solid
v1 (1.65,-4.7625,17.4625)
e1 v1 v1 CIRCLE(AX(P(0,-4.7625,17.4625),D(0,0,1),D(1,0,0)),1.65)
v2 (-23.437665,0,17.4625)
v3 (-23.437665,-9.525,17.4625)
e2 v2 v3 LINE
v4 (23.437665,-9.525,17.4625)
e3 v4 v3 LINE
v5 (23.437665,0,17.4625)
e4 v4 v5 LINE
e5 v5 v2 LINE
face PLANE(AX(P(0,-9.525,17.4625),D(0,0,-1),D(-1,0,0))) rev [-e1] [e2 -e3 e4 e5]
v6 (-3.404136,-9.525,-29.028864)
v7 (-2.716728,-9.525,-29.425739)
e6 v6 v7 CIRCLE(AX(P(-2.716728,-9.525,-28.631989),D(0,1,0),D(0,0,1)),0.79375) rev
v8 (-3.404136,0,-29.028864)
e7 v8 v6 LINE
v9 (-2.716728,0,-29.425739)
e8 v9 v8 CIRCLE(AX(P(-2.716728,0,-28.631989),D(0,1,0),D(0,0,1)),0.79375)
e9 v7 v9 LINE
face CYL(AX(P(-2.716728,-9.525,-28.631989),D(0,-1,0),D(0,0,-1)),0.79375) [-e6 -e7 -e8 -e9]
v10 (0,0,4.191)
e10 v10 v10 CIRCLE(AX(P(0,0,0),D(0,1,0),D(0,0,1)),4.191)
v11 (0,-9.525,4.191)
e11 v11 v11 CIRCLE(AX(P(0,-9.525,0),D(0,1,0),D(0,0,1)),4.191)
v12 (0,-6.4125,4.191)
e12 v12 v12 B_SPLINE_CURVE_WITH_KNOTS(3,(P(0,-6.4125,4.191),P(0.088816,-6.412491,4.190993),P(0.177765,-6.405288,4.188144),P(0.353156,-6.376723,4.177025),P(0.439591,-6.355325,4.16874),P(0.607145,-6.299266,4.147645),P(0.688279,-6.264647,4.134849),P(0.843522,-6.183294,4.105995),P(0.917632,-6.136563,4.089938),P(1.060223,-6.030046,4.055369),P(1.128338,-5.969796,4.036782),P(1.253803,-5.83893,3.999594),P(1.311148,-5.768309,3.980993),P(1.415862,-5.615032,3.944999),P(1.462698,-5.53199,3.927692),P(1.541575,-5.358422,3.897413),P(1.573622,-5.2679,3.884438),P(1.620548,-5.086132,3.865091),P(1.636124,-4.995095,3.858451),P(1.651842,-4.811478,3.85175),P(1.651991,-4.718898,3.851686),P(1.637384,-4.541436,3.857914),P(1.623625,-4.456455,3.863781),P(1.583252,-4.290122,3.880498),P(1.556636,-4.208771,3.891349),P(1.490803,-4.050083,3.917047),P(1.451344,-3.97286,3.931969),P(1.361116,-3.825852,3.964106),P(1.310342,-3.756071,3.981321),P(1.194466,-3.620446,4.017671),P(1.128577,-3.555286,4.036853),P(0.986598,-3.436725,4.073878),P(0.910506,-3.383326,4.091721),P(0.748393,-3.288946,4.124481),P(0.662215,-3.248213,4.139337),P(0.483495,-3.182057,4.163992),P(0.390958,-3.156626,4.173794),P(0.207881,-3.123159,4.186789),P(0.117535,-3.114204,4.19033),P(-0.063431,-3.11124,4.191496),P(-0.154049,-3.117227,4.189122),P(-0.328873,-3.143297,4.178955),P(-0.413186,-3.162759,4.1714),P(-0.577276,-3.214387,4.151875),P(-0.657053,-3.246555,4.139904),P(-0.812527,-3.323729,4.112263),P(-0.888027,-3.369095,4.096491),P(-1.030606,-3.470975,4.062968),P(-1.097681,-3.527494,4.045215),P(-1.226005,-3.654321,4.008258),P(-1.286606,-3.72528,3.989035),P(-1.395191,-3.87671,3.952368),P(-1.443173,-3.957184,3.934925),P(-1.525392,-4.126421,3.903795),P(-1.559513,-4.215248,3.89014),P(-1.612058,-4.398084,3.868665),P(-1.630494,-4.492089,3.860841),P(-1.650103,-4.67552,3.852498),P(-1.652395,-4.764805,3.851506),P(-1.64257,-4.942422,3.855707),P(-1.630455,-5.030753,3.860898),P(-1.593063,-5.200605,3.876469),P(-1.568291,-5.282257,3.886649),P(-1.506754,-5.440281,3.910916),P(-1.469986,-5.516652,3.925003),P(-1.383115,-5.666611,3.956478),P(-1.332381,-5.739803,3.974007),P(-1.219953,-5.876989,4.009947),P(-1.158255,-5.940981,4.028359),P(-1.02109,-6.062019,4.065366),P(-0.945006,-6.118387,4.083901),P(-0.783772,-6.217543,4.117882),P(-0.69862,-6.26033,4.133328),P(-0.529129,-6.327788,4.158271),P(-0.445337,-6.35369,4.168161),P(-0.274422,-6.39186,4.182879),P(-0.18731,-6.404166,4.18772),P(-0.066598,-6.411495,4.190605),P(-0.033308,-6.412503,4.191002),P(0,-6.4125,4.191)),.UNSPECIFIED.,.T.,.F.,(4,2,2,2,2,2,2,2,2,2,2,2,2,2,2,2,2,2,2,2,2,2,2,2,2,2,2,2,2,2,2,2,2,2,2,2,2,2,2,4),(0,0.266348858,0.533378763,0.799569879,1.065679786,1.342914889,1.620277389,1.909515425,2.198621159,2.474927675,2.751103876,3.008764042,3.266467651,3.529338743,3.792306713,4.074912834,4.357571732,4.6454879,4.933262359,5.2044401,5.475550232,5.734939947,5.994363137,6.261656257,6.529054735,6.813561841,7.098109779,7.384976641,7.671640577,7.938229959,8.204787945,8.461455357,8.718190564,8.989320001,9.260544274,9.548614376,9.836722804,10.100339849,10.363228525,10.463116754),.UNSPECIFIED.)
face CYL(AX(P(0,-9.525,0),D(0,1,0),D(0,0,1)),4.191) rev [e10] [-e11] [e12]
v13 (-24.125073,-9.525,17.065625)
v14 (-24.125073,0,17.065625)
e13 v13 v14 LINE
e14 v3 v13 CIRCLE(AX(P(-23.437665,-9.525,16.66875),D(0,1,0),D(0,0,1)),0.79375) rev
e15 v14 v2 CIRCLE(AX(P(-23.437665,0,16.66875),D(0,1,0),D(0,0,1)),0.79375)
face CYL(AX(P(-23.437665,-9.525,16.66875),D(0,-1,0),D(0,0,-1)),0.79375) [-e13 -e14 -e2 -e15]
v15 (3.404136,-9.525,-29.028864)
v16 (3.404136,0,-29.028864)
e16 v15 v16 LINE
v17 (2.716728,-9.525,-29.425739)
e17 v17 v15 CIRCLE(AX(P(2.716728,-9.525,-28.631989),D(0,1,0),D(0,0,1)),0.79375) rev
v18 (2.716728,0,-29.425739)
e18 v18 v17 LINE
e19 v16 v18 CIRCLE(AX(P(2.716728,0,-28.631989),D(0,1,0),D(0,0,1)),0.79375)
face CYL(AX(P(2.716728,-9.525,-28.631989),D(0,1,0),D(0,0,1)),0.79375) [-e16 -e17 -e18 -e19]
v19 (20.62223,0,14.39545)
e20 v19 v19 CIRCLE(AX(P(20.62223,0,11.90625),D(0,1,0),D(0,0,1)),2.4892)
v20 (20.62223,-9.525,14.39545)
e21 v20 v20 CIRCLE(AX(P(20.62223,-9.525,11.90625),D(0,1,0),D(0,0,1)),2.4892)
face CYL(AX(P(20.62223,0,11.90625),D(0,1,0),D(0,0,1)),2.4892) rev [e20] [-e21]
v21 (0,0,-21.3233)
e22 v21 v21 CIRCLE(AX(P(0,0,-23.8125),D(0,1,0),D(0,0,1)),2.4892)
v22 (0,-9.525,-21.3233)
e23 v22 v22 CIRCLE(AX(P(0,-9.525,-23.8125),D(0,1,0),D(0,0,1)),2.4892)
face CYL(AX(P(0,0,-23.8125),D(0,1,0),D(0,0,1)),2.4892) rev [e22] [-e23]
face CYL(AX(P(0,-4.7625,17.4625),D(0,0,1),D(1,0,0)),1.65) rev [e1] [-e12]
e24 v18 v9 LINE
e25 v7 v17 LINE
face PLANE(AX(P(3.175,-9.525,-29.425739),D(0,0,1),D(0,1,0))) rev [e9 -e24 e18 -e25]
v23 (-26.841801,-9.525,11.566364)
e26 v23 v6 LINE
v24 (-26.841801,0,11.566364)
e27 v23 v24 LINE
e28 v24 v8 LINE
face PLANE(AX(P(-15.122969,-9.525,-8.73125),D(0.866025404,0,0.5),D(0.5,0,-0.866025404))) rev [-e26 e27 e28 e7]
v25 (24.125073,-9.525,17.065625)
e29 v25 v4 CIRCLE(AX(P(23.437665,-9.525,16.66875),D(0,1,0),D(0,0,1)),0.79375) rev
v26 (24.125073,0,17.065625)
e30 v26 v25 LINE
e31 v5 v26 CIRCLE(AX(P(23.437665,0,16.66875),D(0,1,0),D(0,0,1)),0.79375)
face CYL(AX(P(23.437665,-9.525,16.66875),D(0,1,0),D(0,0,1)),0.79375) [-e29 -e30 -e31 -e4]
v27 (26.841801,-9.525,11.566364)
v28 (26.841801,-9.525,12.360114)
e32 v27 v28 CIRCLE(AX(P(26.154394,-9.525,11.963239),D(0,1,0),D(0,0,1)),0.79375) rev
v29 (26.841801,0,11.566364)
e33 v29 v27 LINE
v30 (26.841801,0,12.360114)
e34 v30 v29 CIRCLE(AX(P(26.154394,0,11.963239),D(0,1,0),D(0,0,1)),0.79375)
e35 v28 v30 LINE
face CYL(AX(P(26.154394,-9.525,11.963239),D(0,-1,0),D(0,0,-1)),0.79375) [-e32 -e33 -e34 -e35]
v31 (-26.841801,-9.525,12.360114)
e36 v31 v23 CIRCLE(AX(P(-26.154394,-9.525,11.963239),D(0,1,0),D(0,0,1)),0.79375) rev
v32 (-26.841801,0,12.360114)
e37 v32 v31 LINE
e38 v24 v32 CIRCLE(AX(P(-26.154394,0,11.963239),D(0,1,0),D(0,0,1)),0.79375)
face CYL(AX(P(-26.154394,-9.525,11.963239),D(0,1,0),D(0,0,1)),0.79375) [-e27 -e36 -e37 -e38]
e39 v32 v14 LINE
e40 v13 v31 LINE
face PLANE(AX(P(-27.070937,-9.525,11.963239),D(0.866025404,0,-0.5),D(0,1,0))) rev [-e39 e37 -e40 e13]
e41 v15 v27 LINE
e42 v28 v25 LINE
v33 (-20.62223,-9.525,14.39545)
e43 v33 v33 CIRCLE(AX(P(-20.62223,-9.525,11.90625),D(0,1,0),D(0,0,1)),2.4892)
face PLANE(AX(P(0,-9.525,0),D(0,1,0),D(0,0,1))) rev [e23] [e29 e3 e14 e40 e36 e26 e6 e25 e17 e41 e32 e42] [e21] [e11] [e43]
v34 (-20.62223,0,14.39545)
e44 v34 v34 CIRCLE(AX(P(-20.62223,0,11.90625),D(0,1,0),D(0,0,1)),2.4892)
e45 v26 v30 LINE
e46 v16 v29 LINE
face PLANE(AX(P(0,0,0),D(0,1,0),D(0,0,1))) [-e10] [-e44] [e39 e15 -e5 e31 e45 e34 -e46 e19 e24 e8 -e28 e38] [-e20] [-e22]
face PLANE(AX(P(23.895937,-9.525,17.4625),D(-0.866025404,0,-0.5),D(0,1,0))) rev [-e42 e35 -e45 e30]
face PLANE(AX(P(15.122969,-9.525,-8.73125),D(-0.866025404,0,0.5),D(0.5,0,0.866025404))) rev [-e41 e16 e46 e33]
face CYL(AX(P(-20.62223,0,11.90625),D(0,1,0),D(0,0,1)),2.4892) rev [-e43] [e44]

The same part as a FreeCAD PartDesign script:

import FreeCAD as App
import Part
import Sketcher

V = App.Vector
Q = App.Units.Quantity


def edges_at(feature, points):
    """Names of the edges that pass closest to the given points."""
    edges = feature.Shape.Edges
    near = lambda p: min(range(len(edges)), key=lambda i: edges[i].distToShape(Part.Vertex(*p))[0])
    return sorted({f"Edge{near(p) + 1}" for p in points})


def add_polygon(sketch, points):
    """Adds a closed chain of lines whose ends are joined by coincident constraints."""
    first, n = sketch.GeometryCount, len(points)
    for a, b in zip(points, points[1:] + points[:1]):
        sketch.addGeometry(Part.LineSegment(App.Vector(*a, 0), App.Vector(*b, 0)), False)
    for i in range(n):
        sketch.addConstraint(Sketcher.Constraint("Coincident", first + i, 2, first + (i + 1) % n, 1))

doc = App.newDocument("Part")
body = doc.addObject("PartDesign::Body", "Body")

# Sketch on XZ plane
sketch1 = doc.addObject("Sketcher::SketchObject", "Sketch")
body.addObject(sketch1)
sketch1.AttachmentSupport = (doc.XZ_Plane, [""])
sketch1.MapMode = "FlatFace"
add_polygon(sketch1, [(30.245937, 17.4625), (0, -34.925), (-30.245937, 17.4625)])  # lines 0-2
sketch1.addGeometry(Part.Circle(V(0, 0, 0), V(0, 0, 1), 4.191), False)  # 3
sketch1.addConstraint([
    Sketcher.Constraint("Horizontal", 2),
    Sketcher.Constraint("Coincident", 3, 3, -1, 1),
    Sketcher.Constraint("PointOnObject", 0, 2, -2),
    Sketcher.Constraint("Equal", 0, 1),
    Sketcher.Constraint("Diameter", 3, Q("0.33 in")),
    Sketcher.Constraint("Angle", 0, Q("-120 deg")),
    Sketcher.Constraint("DistanceY", 0, 2, -1, 1, Q("1.375 in")),
    Sketcher.Constraint("DistanceY", -1, 1, 1, 2, Q("0.6875 in")),
])
pad1 = doc.addObject("PartDesign::Pad", "Pad")
body.addObject(pad1)
pad1.Profile = sketch1
pad1.Length = Q("0.375 in")

# Sketch on XZ plane
sketch2 = doc.addObject("Sketcher::SketchObject", "Sketch001")
body.addObject(sketch2)
sketch2.AttachmentSupport = (doc.XZ_Plane, [""])
sketch2.MapMode = "FlatFace"
sketch2.addGeometry([
    Part.Circle(V(0, -23.8125, 0), V(0, 0, 1), 2.4892),
    Part.Circle(V(20.62223, 11.90625, 0), V(0, 0, 1), 2.4892),
    Part.Circle(V(-20.62223, 11.90625, 0), V(0, 0, 1), 2.4892),
], False)
sketch2.addConstraint([
    Sketcher.Constraint("Equal", 0, 1),
    Sketcher.Constraint("Equal", 1, 2),
    Sketcher.Constraint("Symmetric", 1, 3, 2, 3, -2),
    Sketcher.Constraint("PointOnObject", 0, 3, -2),
    Sketcher.Constraint("Diameter", 0, Q("0.196 in")),
    Sketcher.Constraint("DistanceY", 0, 3, -1, 1, Q("0.9375 in")),
    Sketcher.Constraint("DistanceY", -1, 1, 1, 3, Q("0.46875 in")),
    Sketcher.Constraint("DistanceX", -1, 1, 1, 3, Q("20.62223 mm")),
])
doc.recompute()
hole = doc.addObject("PartDesign::Hole", "Hole")
body.addObject(hole)
hole.Profile = sketch2
hole.ThreadType = "None"
hole.Diameter = Q("0.196 in")
hole.DepthType = "ThroughAll"
hole.Reversed = True

# Sketch on XY plane
sketch3 = doc.addObject("Sketcher::SketchObject", "Sketch002")
body.addObject(sketch3)
sketch3.AttachmentSupport = (doc.XY_Plane, [""])
sketch3.MapMode = "FlatFace"
sketch3.AttachmentOffset = App.Placement(V(0, 0, 0.6875 * 25.4), App.Rotation())
sketch3.addGeometry(Part.Circle(V(0, -4.7625, 0), V(0, 0, 1), 1.65), False)
sketch3.addConstraint([
    Sketcher.Constraint("PointOnObject", 0, 3, -2),
    Sketcher.Constraint("Diameter", 0, Q("3.3 mm")),
    Sketcher.Constraint("DistanceY", 0, 3, -1, 1, Q("0.1875 in")),
])
pocket1 = doc.addObject("PartDesign::Pocket", "Pocket")
body.addObject(pocket1)
pocket1.Profile = sketch3
pocket1.Type = "UpToFirst"
doc.recompute()

chamfer = doc.addObject("PartDesign::Chamfer", "Chamfer")
body.addObject(chamfer)
chamfer.Base = (pocket1, edges_at(pocket1, [(0, -4.763, -34.925)]))
chamfer.Size = Q("0.25 in")
doc.recompute()

chamfer2 = doc.addObject("PartDesign::Chamfer", "Chamfer001")
body.addObject(chamfer2)
chamfer2.Base = (chamfer, edges_at(chamfer, [(30.246, -4.763, 17.462)]))
chamfer2.Size = Q("0.25 in")
doc.recompute()

chamfer3 = doc.addObject("PartDesign::Chamfer", "Chamfer002")
body.addObject(chamfer3)
chamfer3.Base = (chamfer2, edges_at(chamfer2, [(-30.246, -4.763, 17.462)]))
chamfer3.Size = Q("0.25 in")
doc.recompute()

fillet = doc.addObject("PartDesign::Fillet", "Fillet")
body.addObject(fillet)
fillet.Base = (chamfer3, edges_at(chamfer3, [
    (-3.175, -4.763, -29.426),
    (-27.071, -4.763, 11.963),
    (23.896, -4.763, 17.462),
    (-23.896, -4.763, 17.462),
    (3.175, -4.763, -29.426),
    (27.071, -4.763, 11.963),
]))
fillet.Radius = Q("0.03125 in")

doc.recompute()
